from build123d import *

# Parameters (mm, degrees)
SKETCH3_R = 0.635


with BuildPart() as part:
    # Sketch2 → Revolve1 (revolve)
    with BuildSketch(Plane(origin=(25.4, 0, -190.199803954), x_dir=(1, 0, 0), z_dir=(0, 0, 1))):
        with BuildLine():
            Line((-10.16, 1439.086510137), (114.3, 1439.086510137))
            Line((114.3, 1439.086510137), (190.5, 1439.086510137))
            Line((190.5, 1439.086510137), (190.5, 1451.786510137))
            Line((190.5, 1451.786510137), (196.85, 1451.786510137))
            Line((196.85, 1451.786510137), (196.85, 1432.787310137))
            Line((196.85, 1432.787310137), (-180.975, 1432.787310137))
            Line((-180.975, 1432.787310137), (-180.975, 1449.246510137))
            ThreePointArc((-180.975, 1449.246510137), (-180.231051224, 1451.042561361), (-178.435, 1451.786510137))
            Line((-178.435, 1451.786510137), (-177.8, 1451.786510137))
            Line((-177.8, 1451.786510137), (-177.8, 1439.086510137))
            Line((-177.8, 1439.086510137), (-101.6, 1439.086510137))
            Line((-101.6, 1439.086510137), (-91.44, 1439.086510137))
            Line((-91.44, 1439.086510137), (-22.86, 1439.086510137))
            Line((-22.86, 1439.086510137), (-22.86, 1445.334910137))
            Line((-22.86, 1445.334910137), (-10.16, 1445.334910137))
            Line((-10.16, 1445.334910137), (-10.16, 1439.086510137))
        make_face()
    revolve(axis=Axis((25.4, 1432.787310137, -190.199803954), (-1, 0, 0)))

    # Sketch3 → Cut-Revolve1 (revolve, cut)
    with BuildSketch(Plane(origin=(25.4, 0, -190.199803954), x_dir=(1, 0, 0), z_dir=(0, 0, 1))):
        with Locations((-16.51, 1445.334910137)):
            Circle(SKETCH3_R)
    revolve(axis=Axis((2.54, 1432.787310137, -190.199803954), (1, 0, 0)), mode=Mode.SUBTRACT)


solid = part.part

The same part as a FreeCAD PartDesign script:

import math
import FreeCAD as App
import Part
import Sketcher
Q = App.Units.Quantity

doc = App.newDocument("Part")
params = doc.addObject("Spreadsheet::Sheet", "Params")
for row, (alias, value) in enumerate([
    ("sketch1_radius", "0.1 in"),
    ("sketch1_width", "7.9 in"),
    ("sketch1_width2", "0.5 in"),
    ("sketch1_width3", "6.1 in"),
    ("sketch1_width4", "0.25 in"),
    ("revolution_angle", "360 deg"),
    ("sketch2_diameter", "0.05 in"),
    ("groove_angle", "360 deg"),
], start=1):
    params.set(f"A{row}", alias)
    params.set(f"B{row}", "=" + value)
    params.setAlias(f"B{row}", alias)

body = doc.addObject("PartDesign::Body", "Body")

# Sketch on XY plane
sketch1 = body.newObject("Sketcher::SketchObject", "Sketch")
sketch1.AttachmentSupport = (doc.getObject("XY_Plane"), [""])
sketch1.MapMode = "FlatFace"
sketch1.AttachmentOffset = App.Placement(App.Vector(0, 0, -190.199804), App.Rotation())
sketch1.addGeometry([
    Part.LineSegment(App.Vector(215.9, 1439.1, 0), App.Vector(15.2, 1439.1, 0)),  # 0
    Part.LineSegment(App.Vector(15.2, 1439.1, 0), App.Vector(15.2, 1445.3, 0)),  # 1
    Part.LineSegment(App.Vector(15.2, 1445.3, 0), App.Vector(2.5, 1445.3, 0)),  # 2
    Part.LineSegment(App.Vector(2.5, 1445.3, 0), App.Vector(2.5, 1439.1, 0)),  # 3
    Part.LineSegment(App.Vector(2.5, 1439.1, 0), App.Vector(-152.4, 1439.1, 0)),  # 4
    Part.LineSegment(App.Vector(-152.4, 1439.1, 0), App.Vector(-152.4, 1451.8, 0)),  # 5
    Part.LineSegment(App.Vector(-152.4, 1451.8, 0), App.Vector(-153, 1451.8, 0)),  # 6
    Part.ArcOfCircle(Part.Circle(App.Vector(-153, 1449.2, 0), App.Vector(0, 0, 1), 2.5), math.radians(90), math.radians(180)),  # 7
    Part.LineSegment(App.Vector(-155.6, 1449.2, 0), App.Vector(-155.6, 1432.8, 0)),  # 8
    Part.LineSegment(App.Vector(-155.6, 1432.8, 0), App.Vector(222.2, 1432.8, 0)),  # 9
    Part.LineSegment(App.Vector(222.2, 1432.8, 0), App.Vector(222.2, 1451.8, 0)),  # 10
    Part.LineSegment(App.Vector(222.2, 1451.8, 0), App.Vector(215.9, 1451.8, 0)),  # 11
    Part.LineSegment(App.Vector(215.9, 1451.8, 0), App.Vector(215.9, 1439.1, 0)),  # 12
], False)
sketch1.addGeometry(Part.LineSegment(App.Vector(222.2, 1432.8, 0), App.Vector(-155.6, 1432.8, 0)), True)  # axis
sketch1.addConstraint([
    Sketcher.Constraint("Coincident", 0, 2, 1, 1),
    Sketcher.Constraint("Coincident", 1, 2, 2, 1),
    Sketcher.Constraint("Coincident", 2, 2, 3, 1),
    Sketcher.Constraint("Coincident", 3, 2, 4, 1),
    Sketcher.Constraint("Coincident", 4, 2, 5, 1),
    Sketcher.Constraint("Coincident", 5, 2, 6, 1),
    Sketcher.Constraint("Tangent", 6, 2, 7, 1),
    Sketcher.Constraint("Tangent", 7, 2, 8, 1),
    Sketcher.Constraint("Coincident", 8, 2, 9, 1),
    Sketcher.Constraint("Coincident", 9, 2, 10, 1),
    Sketcher.Constraint("Coincident", 10, 2, 11, 1),
    Sketcher.Constraint("Coincident", 11, 2, 12, 1),
    Sketcher.Constraint("Coincident", 12, 2, 0, 1),
    Sketcher.Constraint("Horizontal", 0),
    Sketcher.Constraint("Vertical", 1),
    Sketcher.Constraint("Horizontal", 2),
    Sketcher.Constraint("Vertical", 3),
    Sketcher.Constraint("Horizontal", 4),
    Sketcher.Constraint("Vertical", 5),
    Sketcher.Constraint("Horizontal", 6),
    Sketcher.Constraint("Vertical", 8),
    Sketcher.Constraint("Horizontal", 9),
    Sketcher.Constraint("Vertical", 10),
    Sketcher.Constraint("Horizontal", 11),
    Sketcher.Constraint("Vertical", 12),
    Sketcher.Constraint("Horizontal", 13),
    Sketcher.Constraint("Coincident", 13, 1, 9, 2),
    Sketcher.Constraint("Horizontal", 0, 2, 3, 2),
    Sketcher.Constraint("Horizontal", 6, 2, 10, 2),
    Sketcher.Constraint("Vertical", 7, 2, 13, 2),
    Sketcher.Constraint("Equal", 2, 5),
    Sketcher.Constraint("Radius", 7, Q("0.1 in")),
    Sketcher.Constraint("DistanceX", 0, 2, 0, 1, Q("7.9 in")),
    Sketcher.Constraint("DistanceX", 2, 2, 2, 1, Q("0.5 in")),
    Sketcher.Constraint("DistanceX", 4, 2, 4, 1, Q("6.1 in")),
    Sketcher.Constraint("DistanceX", 4, 2, -1, 1, Q("6 in")),
    Sketcher.Constraint("DistanceX", 11, 2, 11, 1, Q("0.25 in")),
    Sketcher.Constraint("DistanceX", 6, 2, 6, 1, Q("0.025 in")),
    Sketcher.Constraint("DistanceY", 1, 1, 1, 2, Q("0.246 in")),
    Sketcher.Constraint("DistanceY", 8, 2, 8, 1, Q("0.648 in")),
    Sketcher.Constraint("DistanceY", -1, 1, 7, 3, Q("1449.24651 mm")),
])
sketch1.setExpression("Constraints[31]", "Params.sketch1_radius")
sketch1.setExpression("Constraints[32]", "Params.sketch1_width")
sketch1.setExpression("Constraints[33]", "Params.sketch1_width2")
sketch1.setExpression("Constraints[34]", "Params.sketch1_width3")
sketch1.setExpression("Constraints[36]", "Params.sketch1_width4")
revolution = body.newObject("PartDesign::Revolution", "Revolution")
revolution.Profile = sketch1
revolution.ReferenceAxis = (sketch1, ["Axis0"])
revolution.setExpression("Angle", "Params.revolution_angle")

# Sketch on XY plane
sketch2 = body.newObject("Sketcher::SketchObject", "Sketch001")
sketch2.AttachmentSupport = (doc.getObject("XY_Plane"), [""])
sketch2.MapMode = "FlatFace"
sketch2.AttachmentOffset = App.Placement(App.Vector(0, 0, -190.199804), App.Rotation())
sketch2.addGeometry(Part.Circle(App.Vector(8.9, 1445.3, 0), App.Vector(0, 0, 1), 0.6), False)
sketch2.addGeometry(Part.LineSegment(App.Vector(8.9, 1432.8, 0), App.Vector(18.9, 1432.8, 0)), True)  # axis
sketch2.addConstraint([
    Sketcher.Constraint("Horizontal", 1),
    Sketcher.Constraint("Vertical", 0, 3, 1, 1),
    Sketcher.Constraint("Diameter", 0, Q("0.05 in")),
    Sketcher.Constraint("DistanceX", -1, 1, 0, 3, Q("0.35 in")),
    Sketcher.Constraint("DistanceY", 1, 1, 0, 3, Q("0.494 in")),
    Sketcher.Constraint("DistanceX", 1, 1, 1, 2, Q("10 mm")),
    Sketcher.Constraint("DistanceY", -1, 1, 0, 3, Q("1445.33491 mm")),
])
sketch2.setExpression("Constraints[2]", "Params.sketch2_diameter")
groove = body.newObject("PartDesign::Groove", "Groove")
groove.Profile = sketch2
groove.ReferenceAxis = (sketch2, ["Axis0"])
groove.setExpression("Angle", "Params.groove_angle")

doc.recompute()
